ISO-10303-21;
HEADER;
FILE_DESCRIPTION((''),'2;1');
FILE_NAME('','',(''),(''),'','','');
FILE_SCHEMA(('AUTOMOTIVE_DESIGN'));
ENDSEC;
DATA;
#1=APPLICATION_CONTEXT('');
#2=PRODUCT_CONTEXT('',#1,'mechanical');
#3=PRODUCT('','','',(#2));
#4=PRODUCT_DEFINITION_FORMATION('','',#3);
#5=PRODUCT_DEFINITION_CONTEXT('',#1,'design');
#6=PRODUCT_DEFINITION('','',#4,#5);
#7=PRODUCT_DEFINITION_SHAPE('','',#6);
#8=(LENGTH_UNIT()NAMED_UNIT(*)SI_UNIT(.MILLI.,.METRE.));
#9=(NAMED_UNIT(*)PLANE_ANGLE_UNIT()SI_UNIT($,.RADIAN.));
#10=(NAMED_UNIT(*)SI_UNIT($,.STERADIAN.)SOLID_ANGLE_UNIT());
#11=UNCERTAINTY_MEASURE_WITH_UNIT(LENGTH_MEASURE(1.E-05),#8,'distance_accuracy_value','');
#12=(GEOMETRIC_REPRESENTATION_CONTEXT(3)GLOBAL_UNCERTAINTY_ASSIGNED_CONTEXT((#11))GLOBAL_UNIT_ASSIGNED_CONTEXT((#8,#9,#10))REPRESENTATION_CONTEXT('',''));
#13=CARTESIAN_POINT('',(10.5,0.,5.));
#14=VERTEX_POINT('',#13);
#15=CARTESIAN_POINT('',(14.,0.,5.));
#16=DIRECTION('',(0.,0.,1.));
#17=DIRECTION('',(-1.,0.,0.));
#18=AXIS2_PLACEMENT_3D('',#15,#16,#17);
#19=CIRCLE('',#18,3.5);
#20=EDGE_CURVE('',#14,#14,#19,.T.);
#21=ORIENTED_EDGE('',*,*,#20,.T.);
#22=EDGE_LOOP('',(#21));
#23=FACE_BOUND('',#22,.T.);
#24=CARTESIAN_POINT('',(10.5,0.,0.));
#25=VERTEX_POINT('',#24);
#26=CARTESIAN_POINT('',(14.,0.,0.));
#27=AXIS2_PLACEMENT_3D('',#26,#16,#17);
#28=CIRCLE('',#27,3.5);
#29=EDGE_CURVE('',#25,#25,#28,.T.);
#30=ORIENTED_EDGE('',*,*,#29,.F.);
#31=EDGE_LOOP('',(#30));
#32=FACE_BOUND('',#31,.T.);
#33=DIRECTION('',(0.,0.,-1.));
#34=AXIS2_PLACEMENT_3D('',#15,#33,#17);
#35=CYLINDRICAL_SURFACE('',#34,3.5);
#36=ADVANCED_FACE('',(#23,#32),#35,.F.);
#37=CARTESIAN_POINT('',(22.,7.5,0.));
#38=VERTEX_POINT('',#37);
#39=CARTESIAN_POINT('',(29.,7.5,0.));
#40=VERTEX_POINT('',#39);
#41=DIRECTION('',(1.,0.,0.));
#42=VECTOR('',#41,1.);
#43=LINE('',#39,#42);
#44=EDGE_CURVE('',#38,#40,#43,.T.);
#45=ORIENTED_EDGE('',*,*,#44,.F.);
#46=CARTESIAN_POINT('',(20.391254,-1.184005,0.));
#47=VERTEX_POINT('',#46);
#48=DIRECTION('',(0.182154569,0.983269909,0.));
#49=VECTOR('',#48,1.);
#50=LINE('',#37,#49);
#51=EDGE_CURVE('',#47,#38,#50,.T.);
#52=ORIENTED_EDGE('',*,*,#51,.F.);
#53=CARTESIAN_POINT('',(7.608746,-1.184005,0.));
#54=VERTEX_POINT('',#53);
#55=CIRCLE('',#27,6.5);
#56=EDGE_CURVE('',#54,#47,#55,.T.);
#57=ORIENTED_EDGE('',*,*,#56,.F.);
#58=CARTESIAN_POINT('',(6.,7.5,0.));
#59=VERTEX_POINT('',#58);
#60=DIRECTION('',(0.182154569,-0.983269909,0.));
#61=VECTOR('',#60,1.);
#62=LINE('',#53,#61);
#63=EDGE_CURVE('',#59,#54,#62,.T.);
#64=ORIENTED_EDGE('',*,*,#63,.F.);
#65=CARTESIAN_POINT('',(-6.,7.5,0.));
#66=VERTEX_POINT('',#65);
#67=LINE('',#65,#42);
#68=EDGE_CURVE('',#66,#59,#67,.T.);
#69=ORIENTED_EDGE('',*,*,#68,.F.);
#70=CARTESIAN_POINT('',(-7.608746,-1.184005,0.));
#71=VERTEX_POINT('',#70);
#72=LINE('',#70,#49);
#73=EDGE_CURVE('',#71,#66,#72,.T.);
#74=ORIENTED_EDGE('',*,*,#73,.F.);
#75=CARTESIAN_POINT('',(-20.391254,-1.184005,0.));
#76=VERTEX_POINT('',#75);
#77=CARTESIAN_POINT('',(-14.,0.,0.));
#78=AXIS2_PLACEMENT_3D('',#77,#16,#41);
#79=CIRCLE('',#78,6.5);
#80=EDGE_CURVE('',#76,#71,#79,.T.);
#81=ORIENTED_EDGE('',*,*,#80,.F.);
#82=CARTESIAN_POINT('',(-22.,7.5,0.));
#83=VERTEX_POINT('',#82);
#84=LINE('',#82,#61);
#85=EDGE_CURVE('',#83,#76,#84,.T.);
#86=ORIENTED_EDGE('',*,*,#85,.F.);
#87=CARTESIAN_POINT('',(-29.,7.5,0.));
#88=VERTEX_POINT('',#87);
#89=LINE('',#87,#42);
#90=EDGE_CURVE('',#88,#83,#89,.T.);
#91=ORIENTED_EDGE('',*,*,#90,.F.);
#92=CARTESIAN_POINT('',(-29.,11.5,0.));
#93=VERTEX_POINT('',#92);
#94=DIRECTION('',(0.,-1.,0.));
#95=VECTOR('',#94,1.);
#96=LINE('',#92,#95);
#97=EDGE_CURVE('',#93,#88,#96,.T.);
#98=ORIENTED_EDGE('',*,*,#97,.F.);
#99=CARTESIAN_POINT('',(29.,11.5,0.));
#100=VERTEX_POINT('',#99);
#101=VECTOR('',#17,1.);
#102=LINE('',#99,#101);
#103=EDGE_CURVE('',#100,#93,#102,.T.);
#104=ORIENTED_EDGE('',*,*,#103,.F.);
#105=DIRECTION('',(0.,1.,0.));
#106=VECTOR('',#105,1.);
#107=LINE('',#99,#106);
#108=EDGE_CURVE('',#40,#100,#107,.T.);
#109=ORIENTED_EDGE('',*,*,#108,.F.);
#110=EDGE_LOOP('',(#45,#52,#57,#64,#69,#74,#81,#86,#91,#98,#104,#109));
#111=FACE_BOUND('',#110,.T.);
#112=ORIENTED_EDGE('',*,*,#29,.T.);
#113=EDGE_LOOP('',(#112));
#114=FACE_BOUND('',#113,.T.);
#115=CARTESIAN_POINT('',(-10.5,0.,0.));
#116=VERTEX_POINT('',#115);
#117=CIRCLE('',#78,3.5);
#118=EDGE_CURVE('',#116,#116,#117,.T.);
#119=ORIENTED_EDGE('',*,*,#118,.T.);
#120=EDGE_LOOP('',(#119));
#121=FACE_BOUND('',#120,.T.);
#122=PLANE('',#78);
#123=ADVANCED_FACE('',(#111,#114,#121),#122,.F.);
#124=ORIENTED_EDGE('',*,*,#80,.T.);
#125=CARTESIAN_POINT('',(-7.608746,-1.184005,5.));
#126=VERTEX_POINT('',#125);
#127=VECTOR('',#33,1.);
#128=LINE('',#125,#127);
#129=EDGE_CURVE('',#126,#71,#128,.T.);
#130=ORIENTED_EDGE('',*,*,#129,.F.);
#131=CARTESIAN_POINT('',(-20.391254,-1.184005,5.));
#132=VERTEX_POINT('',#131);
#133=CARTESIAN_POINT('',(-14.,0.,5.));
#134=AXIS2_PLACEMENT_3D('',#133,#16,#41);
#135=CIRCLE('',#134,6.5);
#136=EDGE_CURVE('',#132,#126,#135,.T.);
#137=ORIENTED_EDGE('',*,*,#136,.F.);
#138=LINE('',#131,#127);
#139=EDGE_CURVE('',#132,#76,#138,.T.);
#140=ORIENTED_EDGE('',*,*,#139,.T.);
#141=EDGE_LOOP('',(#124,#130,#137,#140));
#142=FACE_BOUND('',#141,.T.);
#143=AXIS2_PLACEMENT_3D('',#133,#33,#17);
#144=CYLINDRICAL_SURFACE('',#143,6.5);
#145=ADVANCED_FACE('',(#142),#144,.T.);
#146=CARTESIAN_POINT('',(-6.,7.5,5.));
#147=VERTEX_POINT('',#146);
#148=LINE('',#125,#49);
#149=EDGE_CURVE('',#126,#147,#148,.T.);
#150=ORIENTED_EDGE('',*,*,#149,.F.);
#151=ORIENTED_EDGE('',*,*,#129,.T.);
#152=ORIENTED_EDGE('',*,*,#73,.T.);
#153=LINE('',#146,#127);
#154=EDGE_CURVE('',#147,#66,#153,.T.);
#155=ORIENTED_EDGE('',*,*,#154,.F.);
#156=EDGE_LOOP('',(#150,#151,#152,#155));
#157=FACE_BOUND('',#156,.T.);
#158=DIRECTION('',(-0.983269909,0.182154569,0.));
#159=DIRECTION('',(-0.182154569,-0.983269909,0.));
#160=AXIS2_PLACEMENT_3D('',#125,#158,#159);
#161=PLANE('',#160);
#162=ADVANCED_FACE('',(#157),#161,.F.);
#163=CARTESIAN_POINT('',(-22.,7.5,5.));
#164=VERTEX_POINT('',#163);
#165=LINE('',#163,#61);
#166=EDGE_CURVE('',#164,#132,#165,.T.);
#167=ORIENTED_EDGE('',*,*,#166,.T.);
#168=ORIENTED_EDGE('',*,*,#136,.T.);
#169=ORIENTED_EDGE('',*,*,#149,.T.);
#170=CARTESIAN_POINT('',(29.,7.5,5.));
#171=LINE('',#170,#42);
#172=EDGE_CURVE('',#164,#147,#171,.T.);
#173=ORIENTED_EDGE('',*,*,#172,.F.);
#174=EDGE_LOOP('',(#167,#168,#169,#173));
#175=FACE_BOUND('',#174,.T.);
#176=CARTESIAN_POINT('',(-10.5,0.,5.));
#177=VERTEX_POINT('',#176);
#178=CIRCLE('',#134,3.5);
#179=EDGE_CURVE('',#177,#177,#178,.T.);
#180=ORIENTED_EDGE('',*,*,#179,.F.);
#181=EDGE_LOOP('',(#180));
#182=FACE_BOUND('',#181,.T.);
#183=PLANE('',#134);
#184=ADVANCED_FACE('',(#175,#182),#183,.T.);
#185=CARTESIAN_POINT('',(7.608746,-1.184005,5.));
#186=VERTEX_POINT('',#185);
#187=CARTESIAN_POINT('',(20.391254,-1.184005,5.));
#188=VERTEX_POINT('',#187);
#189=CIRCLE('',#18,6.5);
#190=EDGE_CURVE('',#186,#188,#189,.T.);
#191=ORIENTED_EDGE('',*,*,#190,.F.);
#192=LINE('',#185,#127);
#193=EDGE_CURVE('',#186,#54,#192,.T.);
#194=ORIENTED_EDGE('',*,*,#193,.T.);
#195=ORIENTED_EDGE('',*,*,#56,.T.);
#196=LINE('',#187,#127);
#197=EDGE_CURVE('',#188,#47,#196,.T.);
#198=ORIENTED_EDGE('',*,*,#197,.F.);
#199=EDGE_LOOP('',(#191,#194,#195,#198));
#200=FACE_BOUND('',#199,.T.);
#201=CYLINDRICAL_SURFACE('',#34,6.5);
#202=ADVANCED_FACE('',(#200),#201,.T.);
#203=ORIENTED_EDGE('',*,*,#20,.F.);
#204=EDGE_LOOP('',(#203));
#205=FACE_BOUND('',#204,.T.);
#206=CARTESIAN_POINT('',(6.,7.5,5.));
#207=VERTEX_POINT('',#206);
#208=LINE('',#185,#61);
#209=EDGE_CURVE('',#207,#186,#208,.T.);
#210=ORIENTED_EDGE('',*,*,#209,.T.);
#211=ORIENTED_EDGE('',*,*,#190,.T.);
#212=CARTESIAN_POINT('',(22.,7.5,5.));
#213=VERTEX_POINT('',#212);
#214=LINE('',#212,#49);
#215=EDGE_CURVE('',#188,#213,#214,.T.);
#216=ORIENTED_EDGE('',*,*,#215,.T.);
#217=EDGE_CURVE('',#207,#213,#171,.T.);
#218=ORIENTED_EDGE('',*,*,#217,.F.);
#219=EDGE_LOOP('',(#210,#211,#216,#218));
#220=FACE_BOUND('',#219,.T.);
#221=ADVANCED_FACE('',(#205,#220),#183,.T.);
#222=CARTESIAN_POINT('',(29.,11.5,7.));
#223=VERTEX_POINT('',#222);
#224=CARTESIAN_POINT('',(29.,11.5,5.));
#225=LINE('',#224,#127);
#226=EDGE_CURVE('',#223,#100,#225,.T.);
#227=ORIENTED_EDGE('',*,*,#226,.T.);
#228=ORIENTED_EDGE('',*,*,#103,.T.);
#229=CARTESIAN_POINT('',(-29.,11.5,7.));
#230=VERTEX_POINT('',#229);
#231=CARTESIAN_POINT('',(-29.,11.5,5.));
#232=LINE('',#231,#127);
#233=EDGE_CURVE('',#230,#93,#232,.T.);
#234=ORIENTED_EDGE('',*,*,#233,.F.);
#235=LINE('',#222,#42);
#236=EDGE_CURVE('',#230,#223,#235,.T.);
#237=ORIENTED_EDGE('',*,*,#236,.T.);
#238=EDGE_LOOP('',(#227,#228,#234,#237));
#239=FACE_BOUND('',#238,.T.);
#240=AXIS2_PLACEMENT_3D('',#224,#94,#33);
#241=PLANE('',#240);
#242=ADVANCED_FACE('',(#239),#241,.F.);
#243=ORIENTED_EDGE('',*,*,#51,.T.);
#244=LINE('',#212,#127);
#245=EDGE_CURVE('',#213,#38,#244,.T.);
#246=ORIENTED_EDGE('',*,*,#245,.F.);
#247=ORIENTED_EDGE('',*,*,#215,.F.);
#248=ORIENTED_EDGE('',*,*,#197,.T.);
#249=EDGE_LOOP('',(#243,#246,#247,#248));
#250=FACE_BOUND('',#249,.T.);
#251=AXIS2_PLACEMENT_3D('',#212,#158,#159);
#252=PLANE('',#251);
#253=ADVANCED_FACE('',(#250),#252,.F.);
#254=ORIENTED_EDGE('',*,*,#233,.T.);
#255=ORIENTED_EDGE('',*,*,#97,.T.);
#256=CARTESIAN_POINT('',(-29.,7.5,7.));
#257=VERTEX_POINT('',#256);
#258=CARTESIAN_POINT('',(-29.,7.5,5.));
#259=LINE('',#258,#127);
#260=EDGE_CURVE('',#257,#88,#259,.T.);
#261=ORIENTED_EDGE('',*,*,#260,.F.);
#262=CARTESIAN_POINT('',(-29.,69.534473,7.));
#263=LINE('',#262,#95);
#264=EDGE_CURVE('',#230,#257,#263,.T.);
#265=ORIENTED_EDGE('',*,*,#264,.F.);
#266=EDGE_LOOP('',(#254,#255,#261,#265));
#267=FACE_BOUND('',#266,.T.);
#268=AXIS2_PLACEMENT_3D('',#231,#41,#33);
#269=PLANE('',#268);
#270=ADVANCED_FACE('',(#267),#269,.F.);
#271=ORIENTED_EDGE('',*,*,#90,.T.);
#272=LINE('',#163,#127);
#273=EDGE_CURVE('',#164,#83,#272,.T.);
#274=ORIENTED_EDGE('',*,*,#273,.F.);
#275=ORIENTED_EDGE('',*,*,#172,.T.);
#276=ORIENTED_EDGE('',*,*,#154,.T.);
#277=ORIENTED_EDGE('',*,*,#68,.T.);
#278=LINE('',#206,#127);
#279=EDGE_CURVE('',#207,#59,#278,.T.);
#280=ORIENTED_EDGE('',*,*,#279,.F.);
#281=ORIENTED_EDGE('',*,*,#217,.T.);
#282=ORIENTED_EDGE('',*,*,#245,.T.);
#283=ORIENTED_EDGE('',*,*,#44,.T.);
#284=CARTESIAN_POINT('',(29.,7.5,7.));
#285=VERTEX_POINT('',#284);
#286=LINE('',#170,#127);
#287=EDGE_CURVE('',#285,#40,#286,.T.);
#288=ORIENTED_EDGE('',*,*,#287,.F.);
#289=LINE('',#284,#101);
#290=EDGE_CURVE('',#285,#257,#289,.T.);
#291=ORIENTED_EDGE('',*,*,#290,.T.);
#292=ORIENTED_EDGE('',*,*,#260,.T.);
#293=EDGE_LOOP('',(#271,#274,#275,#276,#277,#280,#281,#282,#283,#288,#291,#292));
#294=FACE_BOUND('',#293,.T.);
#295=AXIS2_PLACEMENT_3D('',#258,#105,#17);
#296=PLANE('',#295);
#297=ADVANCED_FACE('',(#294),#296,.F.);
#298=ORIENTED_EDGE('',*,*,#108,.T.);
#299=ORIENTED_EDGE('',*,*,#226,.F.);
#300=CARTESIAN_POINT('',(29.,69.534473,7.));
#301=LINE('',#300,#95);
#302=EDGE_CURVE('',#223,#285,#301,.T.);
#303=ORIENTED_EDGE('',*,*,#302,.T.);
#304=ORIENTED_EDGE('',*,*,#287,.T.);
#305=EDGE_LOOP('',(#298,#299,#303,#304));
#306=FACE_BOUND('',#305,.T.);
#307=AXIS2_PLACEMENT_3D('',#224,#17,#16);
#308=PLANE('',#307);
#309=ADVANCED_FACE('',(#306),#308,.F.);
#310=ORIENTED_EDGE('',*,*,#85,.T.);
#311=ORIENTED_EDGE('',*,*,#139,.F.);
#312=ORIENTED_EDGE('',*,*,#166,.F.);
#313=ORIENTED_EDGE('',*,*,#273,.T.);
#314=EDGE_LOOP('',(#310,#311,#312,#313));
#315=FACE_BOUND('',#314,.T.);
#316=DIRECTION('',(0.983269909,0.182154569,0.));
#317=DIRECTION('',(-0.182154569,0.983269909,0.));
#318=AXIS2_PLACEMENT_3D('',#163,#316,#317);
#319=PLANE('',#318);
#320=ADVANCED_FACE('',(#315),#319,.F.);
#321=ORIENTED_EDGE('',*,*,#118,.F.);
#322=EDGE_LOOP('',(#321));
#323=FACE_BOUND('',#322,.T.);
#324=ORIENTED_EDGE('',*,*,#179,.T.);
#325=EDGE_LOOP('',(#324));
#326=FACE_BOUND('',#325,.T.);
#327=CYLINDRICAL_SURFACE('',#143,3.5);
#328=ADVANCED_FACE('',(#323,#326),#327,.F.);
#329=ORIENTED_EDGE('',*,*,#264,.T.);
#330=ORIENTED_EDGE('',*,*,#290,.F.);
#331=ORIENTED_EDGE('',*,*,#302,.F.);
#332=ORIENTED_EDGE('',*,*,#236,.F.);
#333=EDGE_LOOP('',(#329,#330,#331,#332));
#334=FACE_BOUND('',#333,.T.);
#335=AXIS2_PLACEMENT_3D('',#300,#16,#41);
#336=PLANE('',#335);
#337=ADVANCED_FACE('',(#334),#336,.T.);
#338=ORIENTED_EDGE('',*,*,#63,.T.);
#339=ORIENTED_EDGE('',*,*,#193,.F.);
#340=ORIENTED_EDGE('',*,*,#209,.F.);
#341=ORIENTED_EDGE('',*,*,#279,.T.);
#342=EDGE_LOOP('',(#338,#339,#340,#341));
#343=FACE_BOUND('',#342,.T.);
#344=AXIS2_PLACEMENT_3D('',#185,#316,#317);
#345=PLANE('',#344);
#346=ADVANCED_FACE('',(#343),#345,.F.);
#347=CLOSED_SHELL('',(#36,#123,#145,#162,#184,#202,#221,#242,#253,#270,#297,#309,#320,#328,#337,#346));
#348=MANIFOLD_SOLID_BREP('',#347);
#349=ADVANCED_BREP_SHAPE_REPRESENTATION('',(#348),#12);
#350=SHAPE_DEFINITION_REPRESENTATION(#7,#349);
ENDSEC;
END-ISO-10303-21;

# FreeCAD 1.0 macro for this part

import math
import FreeCAD as App
import Part
import Sketcher


def add_polygon(sketch, points):
    """Adds a closed chain of lines whose ends are joined by coincident constraints."""
    first, n = sketch.GeometryCount, len(points)
    for a, b in zip(points, points[1:] + points[:1]):
        sketch.addGeometry(Part.LineSegment(App.Vector(*a, 0), App.Vector(*b, 0)), False)
    for i in range(n):
        sketch.addConstraint(Sketcher.Constraint("Coincident", first + i, 2, first + (i + 1) % n, 1))

doc = App.newDocument("Part")
body = doc.addObject("PartDesign::Body", "Body")

# Sketch on XY plane
sketch1 = body.newObject("Sketcher::SketchObject", "Sketch")
sketch1.AttachmentSupport = (doc.getObject("XY_Plane"), [""])
sketch1.MapMode = "FlatFace"
sketch1.addGeometry([
    Part.LineSegment(App.Vector(-7.608746, -1.184005, 0), App.Vector(-6, 7.5, 0)),  # 0
    Part.LineSegment(App.Vector(-6, 7.5, 0), App.Vector(6, 7.5, 0)),  # 1
    Part.LineSegment(App.Vector(6, 7.5, 0), App.Vector(7.608746, -1.184005, 0)),  # 2
    Part.ArcOfCircle(Part.Circle(App.Vector(14, 0, 0), App.Vector(0, 0, 1), 6.5), math.radians(-169.504717), math.radians(-10.495283)),  # 3
    Part.LineSegment(App.Vector(20.391254, -1.184005, 0), App.Vector(22, 7.5, 0)),  # 4
    Part.LineSegment(App.Vector(22, 7.5, 0), App.Vector(29, 7.5, 0)),  # 5
    Part.LineSegment(App.Vector(29, 7.5, 0), App.Vector(29, 11.5, 0)),  # 6
    Part.LineSegment(App.Vector(29, 11.5, 0), App.Vector(-29, 11.5, 0)),  # 7
    Part.LineSegment(App.Vector(-29, 11.5, 0), App.Vector(-29, 7.5, 0)),  # 8
    Part.LineSegment(App.Vector(-29, 7.5, 0), App.Vector(-22, 7.5, 0)),  # 9
    Part.LineSegment(App.Vector(-22, 7.5, 0), App.Vector(-20.391254, -1.184005, 0)),  # 10
    Part.ArcOfCircle(Part.Circle(App.Vector(-14, 0, 0), App.Vector(0, 0, 1), 6.5), math.radians(-169.504717), math.radians(-10.495283)),  # 11
    Part.Circle(App.Vector(-14, 0, 0), App.Vector(0, 0, 1), 3.5),  # 12
    Part.Circle(App.Vector(14, 0, 0), App.Vector(0, 0, 1), 3.5),  # 13
], False)
sketch1.addConstraint([
    Sketcher.Constraint("Coincident", 0, 2, 1, 1),
    Sketcher.Constraint("Coincident", 1, 2, 2, 1),
    Sketcher.Constraint("Tangent", 2, 2, 3, 1),
    Sketcher.Constraint("Tangent", 3, 2, 4, 1),
    Sketcher.Constraint("Coincident", 4, 2, 5, 1),
    Sketcher.Constraint("Coincident", 5, 2, 6, 1),
    Sketcher.Constraint("Coincident", 6, 2, 7, 1),
    Sketcher.Constraint("Coincident", 7, 2, 8, 1),
    Sketcher.Constraint("Coincident", 8, 2, 9, 1),
    Sketcher.Constraint("Coincident", 9, 2, 10, 1),
    Sketcher.Constraint("Tangent", 10, 2, 11, 1),
    Sketcher.Constraint("Tangent", 11, 2, 0, 1),
    Sketcher.Constraint("Horizontal", 1),
    Sketcher.Constraint("Horizontal", 5),
    Sketcher.Constraint("Vertical", 6),
    Sketcher.Constraint("Horizontal", 7),
    Sketcher.Constraint("Vertical", 8),
    Sketcher.Constraint("Horizontal", 9),
    Sketcher.Constraint("Coincident", 12, 3, 11, 3),
    Sketcher.Constraint("Coincident", 13, 3, 3, 3),
    Sketcher.Constraint("Equal", 3, 11),
    Sketcher.Constraint("Equal", 12, 13),
    Sketcher.Constraint("Symmetric", 3, 3, 11, 3, -1, 1),
    Sketcher.Constraint("Symmetric", 5, 2, 8, 2, -2),
    Sketcher.Constraint("Symmetric", 3, 2, 10, 2, -2),
    Sketcher.Constraint("Parallel", 0, 4),
    Sketcher.Constraint("Parallel", 2, 10),
    Sketcher.Constraint("Horizontal", 1, 2, 4, 2),
    Sketcher.Constraint("Diameter", 12, 7.0),
    Sketcher.Constraint("Radius", 3, 6.5),
    Sketcher.Constraint("DistanceX", 1, 1, 1, 2, 12.0),
    Sketcher.Constraint("DistanceX", 5, 1, 5, 2, 7.0),
    Sketcher.Constraint("DistanceX", 7, 2, 7, 1, 58.0),
    Sketcher.Constraint("DistanceY", 6, 1, 6, 2, 4.0),
    Sketcher.Constraint("DistanceY", -1, 1, 0, 2, 7.5),
])
pad1 = body.newObject("PartDesign::Pad", "Pad")
pad1.Profile = sketch1
pad1.Length = 5

# Sketch on XZ plane
sketch2 = body.newObject("Sketcher::SketchObject", "Sketch001")
sketch2.AttachmentSupport = (doc.getObject("XZ_Plane"), [""])
sketch2.MapMode = "FlatFace"
sketch2.AttachmentOffset = App.Placement(App.Vector(0, 0, -7.5), App.Rotation())
add_polygon(sketch2, [(-29, 7), (-29, 5), (29, 5), (29, 7)])  # lines 0-3
sketch2.addConstraint([
    Sketcher.Constraint("Vertical", 0),
    Sketcher.Constraint("Horizontal", 1),
    Sketcher.Constraint("Vertical", 2),
    Sketcher.Constraint("Horizontal", 3),
    Sketcher.Constraint("DistanceX", 1, 1, 1, 2, 58.0),
    Sketcher.Constraint("DistanceY", 0, 2, 0, 1, 2.0),
    Sketcher.Constraint("DistanceX", 0, 2, -1, 1, 29.0),
    Sketcher.Constraint("DistanceY", -1, 1, 0, 2, 5.0),
])
pad2 = body.newObject("PartDesign::Pad", "Pad001")
pad2.Profile = sketch2
pad2.Length = 4
pad2.Reversed = True

doc.recompute()
